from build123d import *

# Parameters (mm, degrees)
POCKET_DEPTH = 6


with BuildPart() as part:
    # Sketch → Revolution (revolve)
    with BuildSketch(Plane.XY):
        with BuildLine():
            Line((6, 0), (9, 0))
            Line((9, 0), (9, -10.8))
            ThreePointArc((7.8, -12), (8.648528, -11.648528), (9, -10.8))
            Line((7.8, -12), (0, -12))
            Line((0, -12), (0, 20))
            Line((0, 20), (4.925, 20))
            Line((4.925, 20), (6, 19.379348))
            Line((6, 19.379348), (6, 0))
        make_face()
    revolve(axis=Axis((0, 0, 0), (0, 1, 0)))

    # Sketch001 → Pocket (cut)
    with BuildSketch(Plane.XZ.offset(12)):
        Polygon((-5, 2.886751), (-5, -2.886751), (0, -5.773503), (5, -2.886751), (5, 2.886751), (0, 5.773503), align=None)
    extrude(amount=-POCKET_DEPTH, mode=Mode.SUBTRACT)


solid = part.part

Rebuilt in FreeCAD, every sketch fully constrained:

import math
import FreeCAD as App
import Part
import Sketcher

V = App.Vector
Q = App.Units.Quantity


def add_polygon(sketch, points):
    """Adds a closed chain of lines whose ends are joined by coincident constraints."""
    first, n = sketch.GeometryCount, len(points)
    for a, b in zip(points, points[1:] + points[:1]):
        sketch.addGeometry(Part.LineSegment(App.Vector(*a, 0), App.Vector(*b, 0)), False)
    for i in range(n):
        sketch.addConstraint(Sketcher.Constraint("Coincident", first + i, 2, first + (i + 1) % n, 1))

doc = App.newDocument("Part")
body = doc.addObject("PartDesign::Body", "Body")

# Sketch on XY plane
sketch1 = body.newObject("Sketcher::SketchObject", "Sketch")
sketch1.AttachmentSupport = (doc.getObject("XY_Plane"), [""])
sketch1.MapMode = "FlatFace"
sketch1.addGeometry([
    Part.LineSegment(V(9, 0, 0), V(6, 0, 0)),  # 0
    Part.LineSegment(V(6, 0, 0), V(6, 19.4, 0)),  # 1
    Part.LineSegment(V(6, 19.4, 0), V(4.9, 20, 0)),  # 2
    Part.LineSegment(V(4.9, 20, 0), V(0, 20, 0)),  # 3
    Part.LineSegment(V(0, 20, 0), V(0, -12, 0)),  # 4
    Part.LineSegment(V(0, -12, 0), V(7.8, -12, 0)),  # 5
    Part.ArcOfCircle(Part.Circle(V(7.8, -10.8, 0), V(0, 0, 1), 1.2), math.radians(-90), math.radians(0)),  # 6
    Part.LineSegment(V(9, -10.8, 0), V(9, 0, 0)),  # 7
], False)
sketch1.addConstraint([
    Sketcher.Constraint("Coincident", 0, 2, 1, 1),
    Sketcher.Constraint("Coincident", 1, 2, 2, 1),
    Sketcher.Constraint("Coincident", 2, 2, 3, 1),
    Sketcher.Constraint("Coincident", 3, 2, 4, 1),
    Sketcher.Constraint("Coincident", 4, 2, 5, 1),
    Sketcher.Constraint("Tangent", 5, 2, 6, 1),
    Sketcher.Constraint("Tangent", 6, 2, 7, 1),
    Sketcher.Constraint("Coincident", 7, 2, 0, 1),
    Sketcher.Constraint("Horizontal", 0),
    Sketcher.Constraint("Vertical", 1),
    Sketcher.Constraint("Horizontal", 3),
    Sketcher.Constraint("Vertical", 4),
    Sketcher.Constraint("Horizontal", 5),
    Sketcher.Constraint("Vertical", 7),
    Sketcher.Constraint("PointOnObject", 0, 2, -1),
    Sketcher.Constraint("PointOnObject", 3, 2, -2),
    Sketcher.Constraint("Radius", 6, 1.2),
    Sketcher.Constraint("DistanceX", 0, 2, 0, 1, 3.0),
    Sketcher.Constraint("DistanceY", 4, 2, 4, 1, 32.0),
    Sketcher.Constraint("Angle", 2, Q("149.999982 deg")),
    Sketcher.Constraint("DistanceX", 5, 1, 5, 2, 7.8),
    Sketcher.Constraint("DistanceY", 7, 1, 7, 2, 10.8),
    Sketcher.Constraint("DistanceX", 3, 2, 3, 1, 4.925),
])
revolution = body.newObject("PartDesign::Revolution", "Revolution")
revolution.Profile = sketch1
revolution.ReferenceAxis = (sketch1, ["V_Axis"])
revolution.Angle = 360

# Sketch on XZ plane
sketch2 = body.newObject("Sketcher::SketchObject", "Sketch001")
sketch2.AttachmentSupport = (doc.getObject("XZ_Plane"), [""])
sketch2.MapMode = "FlatFace"
sketch2.AttachmentOffset = App.Placement(V(0, 0, 12), App.Rotation())
add_polygon(sketch2, [(-5, 3), (-5, -3), (0, -6), (5, -3), (5, 3), (0, 6)])  # lines 0-5
sketch2.addConstraint([
    Sketcher.Constraint("Vertical", 0),
    Sketcher.Constraint("Vertical", 3),
    Sketcher.Constraint("Symmetric", 0, 2, 3, 2, -1, 1),
    Sketcher.Constraint("Symmetric", 1, 2, 4, 2, -1, 1),
    Sketcher.Constraint("PointOnObject", 1, 2, -2),
    Sketcher.Constraint("Parallel", 2, 5),
    Sketcher.Constraint("Horizontal", 0, 2, 2, 2),
    Sketcher.Constraint("Angle", 1, Q("-30.000006 deg")),
    Sketcher.Constraint("DistanceX", 0, 2, -1, 1, 5.0),
    Sketcher.Constraint("DistanceY", 0, 2, 0, 1, 5.773502),
])
pocket1 = body.newObject("PartDesign::Pocket", "Pocket")
pocket1.Profile = sketch2
pocket1.Length = 6

doc.recompute()
